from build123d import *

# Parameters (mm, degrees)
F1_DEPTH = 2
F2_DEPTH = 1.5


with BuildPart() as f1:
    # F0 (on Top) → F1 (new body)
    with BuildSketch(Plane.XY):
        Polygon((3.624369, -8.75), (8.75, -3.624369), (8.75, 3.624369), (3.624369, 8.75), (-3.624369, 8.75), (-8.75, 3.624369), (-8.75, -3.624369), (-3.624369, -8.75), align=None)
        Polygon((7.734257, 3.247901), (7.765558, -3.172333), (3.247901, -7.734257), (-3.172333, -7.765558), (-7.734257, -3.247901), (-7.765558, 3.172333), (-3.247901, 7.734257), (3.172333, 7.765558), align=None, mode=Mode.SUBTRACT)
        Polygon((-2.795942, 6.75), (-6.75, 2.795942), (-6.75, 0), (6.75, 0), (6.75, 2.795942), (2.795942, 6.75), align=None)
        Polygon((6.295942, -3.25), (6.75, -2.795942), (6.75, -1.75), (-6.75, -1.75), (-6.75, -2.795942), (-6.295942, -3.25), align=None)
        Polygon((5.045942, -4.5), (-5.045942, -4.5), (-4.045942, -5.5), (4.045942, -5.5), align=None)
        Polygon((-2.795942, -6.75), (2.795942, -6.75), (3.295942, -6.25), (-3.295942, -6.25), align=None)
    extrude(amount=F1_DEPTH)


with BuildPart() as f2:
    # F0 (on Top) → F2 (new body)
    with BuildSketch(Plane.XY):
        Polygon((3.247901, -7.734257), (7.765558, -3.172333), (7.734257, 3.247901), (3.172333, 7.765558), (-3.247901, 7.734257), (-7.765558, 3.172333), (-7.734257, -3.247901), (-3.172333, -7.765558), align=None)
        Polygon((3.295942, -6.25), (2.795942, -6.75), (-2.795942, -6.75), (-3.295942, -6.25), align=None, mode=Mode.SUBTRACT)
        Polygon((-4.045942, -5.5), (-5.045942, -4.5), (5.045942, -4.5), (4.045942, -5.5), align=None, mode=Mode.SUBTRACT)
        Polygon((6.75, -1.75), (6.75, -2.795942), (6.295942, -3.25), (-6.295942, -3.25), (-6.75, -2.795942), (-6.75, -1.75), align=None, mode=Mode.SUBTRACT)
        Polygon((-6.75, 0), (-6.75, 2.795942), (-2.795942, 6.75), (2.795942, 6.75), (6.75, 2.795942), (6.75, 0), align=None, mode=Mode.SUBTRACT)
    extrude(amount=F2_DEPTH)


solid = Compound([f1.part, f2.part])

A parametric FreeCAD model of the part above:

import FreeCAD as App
import Part
import Sketcher

V = App.Vector

doc = App.newDocument("Part")
body = doc.addObject("PartDesign::Body", "Body")
body.AllowCompound = True

sketch1 = body.newObject("Sketcher::SketchObject", "Sketch")
sketch1.AttachmentSupport = (doc.getObject("XY_Plane"), [""])
sketch1.MapMode = "FlatFace"
sketch1.addGeometry([
    Part.LineSegment(V(3.6, -8.8, 0), V(8.8, -3.6, 0)),
    Part.LineSegment(V(8.8, -3.6, 0), V(8.8, 3.6, 0)),
    Part.LineSegment(V(8.8, 3.6, 0), V(3.6, 8.8, 0)),
    Part.LineSegment(V(3.6, 8.8, 0), V(-3.6, 8.8, 0)),
    Part.LineSegment(V(-3.6, 8.8, 0), V(-8.8, 3.6, 0)),
    Part.LineSegment(V(-8.8, 3.6, 0), V(-8.8, -3.6, 0)),
    Part.LineSegment(V(-8.8, -3.6, 0), V(-3.6, -8.8, 0)),
    Part.LineSegment(V(-3.6, -8.8, 0), V(3.6, -8.8, 0)),
    Part.LineSegment(V(3.2, 7.8, 0), V(7.7, 3.2, 0)),
    Part.LineSegment(V(7.7, 3.2, 0), V(7.8, -3.2, 0)),
    Part.LineSegment(V(7.8, -3.2, 0), V(3.2, -7.7, 0)),
    Part.LineSegment(V(3.2, -7.7, 0), V(-3.2, -7.8, 0)),
    Part.LineSegment(V(-3.2, -7.8, 0), V(-7.7, -3.2, 0)),
    Part.LineSegment(V(-7.7, -3.2, 0), V(-7.8, 3.2, 0)),
    Part.LineSegment(V(-7.8, 3.2, 0), V(-3.2, 7.7, 0)),
    Part.LineSegment(V(-3.2, 7.7, 0), V(3.2, 7.8, 0)),
    Part.LineSegment(V(-2.8, 6.8, 0), V(-6.8, 2.8, 0)),
    Part.LineSegment(V(-6.8, 2.8, 0), V(-6.8, 0, 0)),
    Part.LineSegment(V(-6.8, 0, 0), V(6.8, 0, 0)),
    Part.LineSegment(V(6.8, 0, 0), V(6.8, 2.8, 0)),
    Part.LineSegment(V(6.8, 2.8, 0), V(2.8, 6.8, 0)),
    Part.LineSegment(V(2.8, 6.8, 0), V(-2.8, 6.8, 0)),
    Part.LineSegment(V(6.3, -3.2, 0), V(6.8, -2.8, 0)),
    Part.LineSegment(V(6.8, -2.8, 0), V(6.8, -1.8, 0)),
    Part.LineSegment(V(6.8, -1.8, 0), V(-6.8, -1.8, 0)),
    Part.LineSegment(V(-6.8, -1.8, 0), V(-6.8, -2.8, 0)),
    Part.LineSegment(V(-6.8, -2.8, 0), V(-6.3, -3.2, 0)),
    Part.LineSegment(V(-6.3, -3.2, 0), V(6.3, -3.2, 0)),
    Part.LineSegment(V(5, -4.5, 0), V(-5, -4.5, 0)),
    Part.LineSegment(V(-5, -4.5, 0), V(-4, -5.5, 0)),
    Part.LineSegment(V(-4, -5.5, 0), V(4, -5.5, 0)),
    Part.LineSegment(V(4, -5.5, 0), V(5, -4.5, 0)),
    Part.LineSegment(V(-2.8, -6.8, 0), V(2.8, -6.8, 0)),
    Part.LineSegment(V(2.8, -6.8, 0), V(3.3, -6.2, 0)),
    Part.LineSegment(V(3.3, -6.2, 0), V(-3.3, -6.2, 0)),
    Part.LineSegment(V(-3.3, -6.2, 0), V(-2.8, -6.8, 0)),
], False)
sketch1.addConstraint([
    Sketcher.Constraint("Coincident", 0, 2, 1, 1),
    Sketcher.Constraint("Coincident", 1, 2, 2, 1),
    Sketcher.Constraint("Coincident", 2, 2, 3, 1),
    Sketcher.Constraint("Coincident", 3, 2, 4, 1),
    Sketcher.Constraint("Coincident", 4, 2, 5, 1),
    Sketcher.Constraint("Coincident", 5, 2, 6, 1),
    Sketcher.Constraint("Coincident", 6, 2, 7, 1),
    Sketcher.Constraint("Coincident", 7, 2, 0, 1),
    Sketcher.Constraint("Coincident", 8, 2, 9, 1),
    Sketcher.Constraint("Coincident", 9, 2, 10, 1),
    Sketcher.Constraint("Coincident", 10, 2, 11, 1),
    Sketcher.Constraint("Coincident", 11, 2, 12, 1),
    Sketcher.Constraint("Coincident", 12, 2, 13, 1),
    Sketcher.Constraint("Coincident", 13, 2, 14, 1),
    Sketcher.Constraint("Coincident", 14, 2, 15, 1),
    Sketcher.Constraint("Coincident", 15, 2, 8, 1),
    Sketcher.Constraint("Coincident", 16, 2, 17, 1),
    Sketcher.Constraint("Coincident", 17, 2, 18, 1),
    Sketcher.Constraint("Coincident", 18, 2, 19, 1),
    Sketcher.Constraint("Coincident", 19, 2, 20, 1),
    Sketcher.Constraint("Coincident", 20, 2, 21, 1),
    Sketcher.Constraint("Coincident", 21, 2, 16, 1),
    Sketcher.Constraint("Coincident", 22, 2, 23, 1),
    Sketcher.Constraint("Coincident", 23, 2, 24, 1),
    Sketcher.Constraint("Coincident", 24, 2, 25, 1),
    Sketcher.Constraint("Coincident", 25, 2, 26, 1),
    Sketcher.Constraint("Coincident", 26, 2, 27, 1),
    Sketcher.Constraint("Coincident", 27, 2, 22, 1),
    Sketcher.Constraint("Coincident", 28, 2, 29, 1),
    Sketcher.Constraint("Coincident", 29, 2, 30, 1),
    Sketcher.Constraint("Coincident", 30, 2, 31, 1),
    Sketcher.Constraint("Coincident", 31, 2, 28, 1),
    Sketcher.Constraint("Coincident", 32, 2, 33, 1),
    Sketcher.Constraint("Coincident", 33, 2, 34, 1),
    Sketcher.Constraint("Coincident", 34, 2, 35, 1),
    Sketcher.Constraint("Coincident", 35, 2, 32, 1),
    Sketcher.Constraint("Vertical", 1),
    Sketcher.Constraint("Horizontal", 3),
    Sketcher.Constraint("Vertical", 5),
    Sketcher.Constraint("Horizontal", 7),
    Sketcher.Constraint("Vertical", 17),
    Sketcher.Constraint("Horizontal", 18),
    Sketcher.Constraint("Vertical", 19),
    Sketcher.Constraint("Horizontal", 21),
    Sketcher.Constraint("Vertical", 23),
    Sketcher.Constraint("Horizontal", 24),
    Sketcher.Constraint("Vertical", 25),
    Sketcher.Constraint("Horizontal", 27),
    Sketcher.Constraint("Horizontal", 28),
    Sketcher.Constraint("Horizontal", 30),
    Sketcher.Constraint("Horizontal", 32),
    Sketcher.Constraint("Horizontal", 34),
    Sketcher.Constraint("Symmetric", 0, 2, 4, 2, -1, 1),
    Sketcher.Constraint("Symmetric", 2, 2, 6, 2, -1, 1),
    Sketcher.Constraint("Symmetric", 8, 2, 12, 2, -1, 1),
    Sketcher.Constraint("Symmetric", 9, 2, 13, 2, -1, 1),
    Sketcher.Constraint("Symmetric", 10, 2, 14, 2, -1, 1),
    Sketcher.Constraint("Symmetric", 11, 2, 15, 2, -1, 1),
    Sketcher.Constraint("Symmetric", 17, 2, 18, 2, -1, 1),
    Sketcher.Constraint("Symmetric", 16, 2, 22, 2, -1, 1),
    Sketcher.Constraint("Symmetric", 19, 2, 25, 2, -1, 1),
    Sketcher.Constraint("Symmetric", 21, 2, 32, 2, -1, 1),
    Sketcher.Constraint("Perpendicular", 0, 2),
    Sketcher.Constraint("Perpendicular", 2, 4),
    Sketcher.Constraint("Perpendicular", 4, 6),
    Sketcher.Constraint("Perpendicular", 8, 10),
    Sketcher.Constraint("Perpendicular", 9, 11),
    Sketcher.Constraint("Perpendicular", 6, 16),
    Sketcher.Constraint("Perpendicular", 16, 20),
    Sketcher.Constraint("Perpendicular", 20, 22),
    Sketcher.Constraint("Perpendicular", 22, 26),
    Sketcher.Constraint("Parallel", 26, 29),
    Sketcher.Constraint("Perpendicular", 29, 31),
    Sketcher.Constraint("Parallel", 31, 33),
    Sketcher.Constraint("Perpendicular", 33, 35),
    Sketcher.Constraint("Horizontal", 1, 2, 4, 2),
    Sketcher.Constraint("Horizontal", 16, 2, 19, 2),
    Sketcher.Constraint("Vertical", 3, 2, 6, 2),
    Sketcher.Constraint("Vertical", 21, 2, 35, 2),
    Sketcher.Constraint("Equal", 7, 1),
    Sketcher.Constraint("Equal", 8, 9),
    Sketcher.Constraint("Equal", 9, 10),
    Sketcher.Constraint("Equal", 10, 11),
    Sketcher.Constraint("DistanceX", 18, 1, 18, 2, 13.5),
    Sketcher.Constraint("DistanceX", 4, 2, 16, 2, 2.0),
    Sketcher.Constraint("DistanceY", 20, 2, 2, 2, 2.0),
    Sketcher.Constraint("DistanceX", 28, 2, 29, 2, 1.0),
    Sketcher.Constraint("DistanceX", 26, 2, 34, 2, 3.0),
    Sketcher.Constraint("DistanceY", 28, 2, -1, 1, 4.5),
    Sketcher.Constraint("DistanceY", 26, 2, 24, 2, 1.5),
    Sketcher.Constraint("DistanceX", 32, 2, 27, 2, 3.5),
    Sketcher.Constraint("DistanceX", 26, 2, 28, 2, 1.25),
    Sketcher.Constraint("DistanceX", 30, 2, 27, 2, 2.25),
    Sketcher.Constraint("DistanceX", 3, 2, 3, 1, 7.248738),
    Sketcher.Constraint("DistanceY", -1, 1, 8, 2, 3.247901),
    Sketcher.Constraint("DistanceX", 8, 2, 9, 2, 0.031301),
    Sketcher.Constraint("DistanceY", 9, 2, 1, 2, 6.796702),
    Sketcher.Constraint("DistanceX", 21, 2, 21, 1, 5.591884),
])
pad1 = body.newObject("PartDesign::Pad", "Pad")
pad1.Profile = sketch1
pad1.Length = 2
body2 = doc.addObject("PartDesign::Body", "Body001")

sketch2 = body2.newObject("Sketcher::SketchObject", "Sketch001")
sketch2.AttachmentSupport = (doc.getObject("XY_Plane001"), [""])
sketch2.MapMode = "FlatFace"
sketch2.addGeometry([
    Part.LineSegment(V(3.2, -7.7, 0), V(7.8, -3.2, 0)),
    Part.LineSegment(V(7.8, -3.2, 0), V(7.7, 3.2, 0)),
    Part.LineSegment(V(7.7, 3.2, 0), V(3.2, 7.8, 0)),
    Part.LineSegment(V(3.2, 7.8, 0), V(-3.2, 7.7, 0)),
    Part.LineSegment(V(-3.2, 7.7, 0), V(-7.8, 3.2, 0)),
    Part.LineSegment(V(-7.8, 3.2, 0), V(-7.7, -3.2, 0)),
    Part.LineSegment(V(-7.7, -3.2, 0), V(-3.2, -7.8, 0)),
    Part.LineSegment(V(-3.2, -7.8, 0), V(3.2, -7.7, 0)),
    Part.LineSegment(V(-3.3, -6.2, 0), V(3.3, -6.2, 0)),
    Part.LineSegment(V(3.3, -6.2, 0), V(2.8, -6.8, 0)),
    Part.LineSegment(V(2.8, -6.8, 0), V(-2.8, -6.8, 0)),
    Part.LineSegment(V(-2.8, -6.8, 0), V(-3.3, -6.2, 0)),
    Part.LineSegment(V(4, -5.5, 0), V(-4, -5.5, 0)),
    Part.LineSegment(V(-4, -5.5, 0), V(-5, -4.5, 0)),
    Part.LineSegment(V(-5, -4.5, 0), V(5, -4.5, 0)),
    Part.LineSegment(V(5, -4.5, 0), V(4, -5.5, 0)),
    Part.LineSegment(V(-6.8, -1.8, 0), V(6.8, -1.8, 0)),
    Part.LineSegment(V(6.8, -1.8, 0), V(6.8, -2.8, 0)),
    Part.LineSegment(V(6.8, -2.8, 0), V(6.3, -3.2, 0)),
    Part.LineSegment(V(6.3, -3.2, 0), V(-6.3, -3.2, 0)),
    Part.LineSegment(V(-6.3, -3.2, 0), V(-6.8, -2.8, 0)),
    Part.LineSegment(V(-6.8, -2.8, 0), V(-6.8, -1.8, 0)),
    Part.LineSegment(V(6.8, 0, 0), V(-6.8, 0, 0)),
    Part.LineSegment(V(-6.8, 0, 0), V(-6.8, 2.8, 0)),
    Part.LineSegment(V(-6.8, 2.8, 0), V(-2.8, 6.8, 0)),
    Part.LineSegment(V(-2.8, 6.8, 0), V(2.8, 6.8, 0)),
    Part.LineSegment(V(2.8, 6.8, 0), V(6.8, 2.8, 0)),
    Part.LineSegment(V(6.8, 2.8, 0), V(6.8, 0, 0)),
], False)
sketch2.addConstraint([
    Sketcher.Constraint("Coincident", 0, 2, 1, 1),
    Sketcher.Constraint("Coincident", 1, 2, 2, 1),
    Sketcher.Constraint("Coincident", 2, 2, 3, 1),
    Sketcher.Constraint("Coincident", 3, 2, 4, 1),
    Sketcher.Constraint("Coincident", 4, 2, 5, 1),
    Sketcher.Constraint("Coincident", 5, 2, 6, 1),
    Sketcher.Constraint("Coincident", 6, 2, 7, 1),
    Sketcher.Constraint("Coincident", 7, 2, 0, 1),
    Sketcher.Constraint("Coincident", 8, 2, 9, 1),
    Sketcher.Constraint("Coincident", 9, 2, 10, 1),
    Sketcher.Constraint("Coincident", 10, 2, 11, 1),
    Sketcher.Constraint("Coincident", 11, 2, 8, 1),
    Sketcher.Constraint("Coincident", 12, 2, 13, 1),
    Sketcher.Constraint("Coincident", 13, 2, 14, 1),
    Sketcher.Constraint("Coincident", 14, 2, 15, 1),
    Sketcher.Constraint("Coincident", 15, 2, 12, 1),
    Sketcher.Constraint("Coincident", 16, 2, 17, 1),
    Sketcher.Constraint("Coincident", 17, 2, 18, 1),
    Sketcher.Constraint("Coincident", 18, 2, 19, 1),
    Sketcher.Constraint("Coincident", 19, 2, 20, 1),
    Sketcher.Constraint("Coincident", 20, 2, 21, 1),
    Sketcher.Constraint("Coincident", 21, 2, 16, 1),
    Sketcher.Constraint("Coincident", 22, 2, 23, 1),
    Sketcher.Constraint("Coincident", 23, 2, 24, 1),
    Sketcher.Constraint("Coincident", 24, 2, 25, 1),
    Sketcher.Constraint("Coincident", 25, 2, 26, 1),
    Sketcher.Constraint("Coincident", 26, 2, 27, 1),
    Sketcher.Constraint("Coincident", 27, 2, 22, 1),
    Sketcher.Constraint("Horizontal", 8),
    Sketcher.Constraint("Horizontal", 10),
    Sketcher.Constraint("Horizontal", 12),
    Sketcher.Constraint("Horizontal", 14),
    Sketcher.Constraint("Horizontal", 16),
    Sketcher.Constraint("Vertical", 17),
    Sketcher.Constraint("Horizontal", 19),
    Sketcher.Constraint("Vertical", 21),
    Sketcher.Constraint("Horizontal", 22),
    Sketcher.Constraint("Vertical", 23),
    Sketcher.Constraint("Horizontal", 25),
    Sketcher.Constraint("Vertical", 27),
    Sketcher.Constraint("Symmetric", 0, 2, 4, 2, -1, 1),
    Sketcher.Constraint("Symmetric", 1, 2, 5, 2, -1, 1),
    Sketcher.Constraint("Symmetric", 2, 2, 6, 2, -1, 1),
    Sketcher.Constraint("Symmetric", 3, 2, 7, 2, -1, 1),
    Sketcher.Constraint("Symmetric", 17, 2, 23, 2, -1, 1),
    Sketcher.Constraint("Symmetric", 9, 2, 24, 2, -1, 1),
    Sketcher.Constraint("Symmetric", 20, 2, 26, 2, -1, 1),
    Sketcher.Constraint("Symmetric", 22, 2, 27, 2, -1, 1),
    Sketcher.Constraint("Perpendicular", 0, 2),
    Sketcher.Constraint("Perpendicular", 1, 3),
    Sketcher.Constraint("Perpendicular", 9, 11),
    Sketcher.Constraint("Parallel", 11, 13),
    Sketcher.Constraint("Perpendicular", 13, 15),
    Sketcher.Constraint("Parallel", 15, 18),
    Sketcher.Constraint("Perpendicular", 18, 20),
    Sketcher.Constraint("Perpendicular", 20, 24),
    Sketcher.Constraint("Perpendicular", 24, 26),
    Sketcher.Constraint("Horizontal", 17, 2, 20, 2),
    Sketcher.Constraint("Vertical", 10, 2, 24, 2),
    Sketcher.Constraint("Vertical", 9, 2, 25, 2),
    Sketcher.Constraint("Equal", 0, 1),
    Sketcher.Constraint("Equal", 1, 2),
    Sketcher.Constraint("Equal", 2, 3),
    Sketcher.Constraint("DistanceX", 16, 1, 16, 2, 13.5),
    Sketcher.Constraint("DistanceX", 13, 2, 12, 2, 1.0),
    Sketcher.Constraint("DistanceX", 19, 2, 11, 2, 3.0),
    Sketcher.Constraint("DistanceY", 12, 2, -1, 1, 5.5),
    Sketcher.Constraint("DistanceX", 9, 2, 8, 2, 0.5),
    Sketcher.Constraint("DistanceY", 8, 2, 16, 2, 4.5),
    Sketcher.Constraint("DistanceY", 16, 2, 25, 2, 8.5),
    Sketcher.Constraint("DistanceX", 12, 2, 11, 2, 0.75),
    Sketcher.Constraint("DistanceX", 8, 2, 14, 2, 1.75),
    Sketcher.Constraint("DistanceY", -1, 1, 1, 2, 3.247901),
    Sketcher.Constraint("DistanceX", 1, 2, 0, 2, 0.031301),
    Sketcher.Constraint("DistanceX", 5, 2, 8, 2, 11.030199),
    Sketcher.Constraint("Distance", 0, 6.42031),
])
pad2 = body2.newObject("PartDesign::Pad", "Pad001")
pad2.Profile = sketch2
pad2.Length = 1.5

doc.recompute()
